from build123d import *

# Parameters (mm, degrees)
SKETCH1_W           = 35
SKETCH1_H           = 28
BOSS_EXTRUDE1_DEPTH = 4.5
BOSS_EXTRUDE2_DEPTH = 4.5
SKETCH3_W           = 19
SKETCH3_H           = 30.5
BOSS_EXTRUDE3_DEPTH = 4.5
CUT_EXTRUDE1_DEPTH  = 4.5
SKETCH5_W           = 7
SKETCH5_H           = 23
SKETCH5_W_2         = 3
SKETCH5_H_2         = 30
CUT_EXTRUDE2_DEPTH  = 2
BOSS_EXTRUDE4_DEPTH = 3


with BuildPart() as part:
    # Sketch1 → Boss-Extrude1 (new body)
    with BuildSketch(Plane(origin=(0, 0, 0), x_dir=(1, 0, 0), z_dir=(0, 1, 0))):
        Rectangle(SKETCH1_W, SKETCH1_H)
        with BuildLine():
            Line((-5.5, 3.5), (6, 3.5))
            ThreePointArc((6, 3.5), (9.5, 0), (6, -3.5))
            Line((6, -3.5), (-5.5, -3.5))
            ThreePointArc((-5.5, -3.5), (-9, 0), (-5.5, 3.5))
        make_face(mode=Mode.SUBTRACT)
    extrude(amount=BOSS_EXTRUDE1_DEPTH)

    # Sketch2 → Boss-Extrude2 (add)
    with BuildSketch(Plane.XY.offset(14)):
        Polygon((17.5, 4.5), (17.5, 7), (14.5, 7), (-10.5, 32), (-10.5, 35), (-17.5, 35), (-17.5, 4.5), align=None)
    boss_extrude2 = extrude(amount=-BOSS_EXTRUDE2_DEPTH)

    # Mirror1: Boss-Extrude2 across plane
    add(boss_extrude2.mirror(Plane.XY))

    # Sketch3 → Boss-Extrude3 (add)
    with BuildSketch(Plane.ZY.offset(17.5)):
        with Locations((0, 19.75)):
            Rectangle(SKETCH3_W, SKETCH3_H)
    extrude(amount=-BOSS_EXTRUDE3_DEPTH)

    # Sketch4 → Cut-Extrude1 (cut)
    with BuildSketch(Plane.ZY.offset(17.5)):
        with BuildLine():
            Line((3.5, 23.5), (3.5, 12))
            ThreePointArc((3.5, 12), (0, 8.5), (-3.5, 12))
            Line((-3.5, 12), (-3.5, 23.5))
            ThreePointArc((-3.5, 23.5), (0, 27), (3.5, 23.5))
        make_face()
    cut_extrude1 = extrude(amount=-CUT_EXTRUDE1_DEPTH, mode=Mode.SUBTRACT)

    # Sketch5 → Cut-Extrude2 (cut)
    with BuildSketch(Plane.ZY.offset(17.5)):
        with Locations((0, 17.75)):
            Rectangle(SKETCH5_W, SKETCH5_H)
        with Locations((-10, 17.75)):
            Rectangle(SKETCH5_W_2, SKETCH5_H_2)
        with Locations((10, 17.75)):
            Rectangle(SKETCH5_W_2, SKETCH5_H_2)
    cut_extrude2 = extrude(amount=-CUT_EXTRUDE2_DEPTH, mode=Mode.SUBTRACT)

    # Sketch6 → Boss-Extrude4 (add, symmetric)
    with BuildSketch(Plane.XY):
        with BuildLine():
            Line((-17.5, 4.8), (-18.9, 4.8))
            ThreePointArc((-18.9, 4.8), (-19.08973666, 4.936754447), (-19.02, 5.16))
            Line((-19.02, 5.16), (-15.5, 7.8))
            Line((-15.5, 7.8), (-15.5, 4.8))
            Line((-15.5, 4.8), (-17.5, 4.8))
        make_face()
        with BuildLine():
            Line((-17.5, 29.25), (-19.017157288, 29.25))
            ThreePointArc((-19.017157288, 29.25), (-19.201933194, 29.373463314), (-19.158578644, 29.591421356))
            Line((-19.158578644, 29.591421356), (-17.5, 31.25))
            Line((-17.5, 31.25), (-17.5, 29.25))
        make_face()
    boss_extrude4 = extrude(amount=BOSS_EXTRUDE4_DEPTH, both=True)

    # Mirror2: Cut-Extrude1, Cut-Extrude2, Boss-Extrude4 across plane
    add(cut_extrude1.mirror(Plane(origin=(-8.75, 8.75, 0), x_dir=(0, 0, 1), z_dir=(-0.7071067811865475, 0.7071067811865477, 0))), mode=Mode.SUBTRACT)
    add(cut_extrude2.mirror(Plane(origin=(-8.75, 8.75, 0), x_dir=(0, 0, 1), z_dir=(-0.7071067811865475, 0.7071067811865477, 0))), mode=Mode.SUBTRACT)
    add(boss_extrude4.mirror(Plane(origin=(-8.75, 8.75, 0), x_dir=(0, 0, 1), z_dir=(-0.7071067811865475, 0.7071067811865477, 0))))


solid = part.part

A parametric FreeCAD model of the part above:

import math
import FreeCAD as App
import Part
import Sketcher

V = App.Vector
Q = App.Units.Quantity


def add_polygon(sketch, points):
    """Adds a closed chain of lines whose ends are joined by coincident constraints."""
    first, n = sketch.GeometryCount, len(points)
    for a, b in zip(points, points[1:] + points[:1]):
        sketch.addGeometry(Part.LineSegment(App.Vector(*a, 0), App.Vector(*b, 0)), False)
    for i in range(n):
        sketch.addConstraint(Sketcher.Constraint("Coincident", first + i, 2, first + (i + 1) % n, 1))

doc = App.newDocument("Part")
body = doc.addObject("PartDesign::Body", "Body")

# Sketch on XZ plane
sketch1 = body.newObject("Sketcher::SketchObject", "Sketch")
sketch1.AttachmentSupport = (doc.getObject("XZ_Plane"), [""])
sketch1.MapMode = "FlatFace"
add_polygon(sketch1, [(-17.5, -14), (-17.5, 14), (17.5, 14), (17.5, -14)])  # lines 0-3
sketch1.addGeometry(Part.ArcOfCircle(Part.Circle(V(-5.5, 0, 0), V(0, 0, 1), 3.5), math.radians(90), math.radians(270)), False)  # 4
sketch1.addGeometry(Part.LineSegment(V(-5.5, -3.5, 0), V(6, -3.5, 0)), False)  # 5
sketch1.addGeometry(Part.ArcOfCircle(Part.Circle(V(6, 0, 0), V(0, 0, 1), 3.5), math.radians(-90), math.radians(90)), False)  # 6
sketch1.addGeometry(Part.LineSegment(V(6, 3.5, 0), V(-5.5, 3.5, 0)), False)  # 7
sketch1.addConstraint([
    Sketcher.Constraint("Tangent", 4, 2, 5, 1),
    Sketcher.Constraint("Tangent", 5, 2, 6, 1),
    Sketcher.Constraint("Tangent", 6, 2, 7, 1),
    Sketcher.Constraint("Tangent", 7, 2, 4, 1),
    Sketcher.Constraint("Vertical", 0),
    Sketcher.Constraint("Horizontal", 1),
    Sketcher.Constraint("Vertical", 2),
    Sketcher.Constraint("Horizontal", 3),
    Sketcher.Constraint("Horizontal", 5),
    Sketcher.Constraint("Horizontal", 7),
    Sketcher.Constraint("Symmetric", 0, 2, 2, 2, -1, 1),
    Sketcher.Constraint("PointOnObject", 4, 3, -1),
    Sketcher.Constraint("Radius", 4, 3.5),
    Sketcher.Constraint("DistanceX", 1, 1, 1, 2, 35.0),
    Sketcher.Constraint("DistanceY", 0, 1, 0, 2, 28.0),
    Sketcher.Constraint("DistanceX", 5, 1, 5, 2, 11.5),
    Sketcher.Constraint("DistanceX", -1, 1, 6, 3, 6.0),
])
pad1 = body.newObject("PartDesign::Pad", "Pad")
pad1.Profile = sketch1
pad1.Length = 4.5
pad1.Reversed = True

# Sketch on XY plane
sketch2 = body.newObject("Sketcher::SketchObject", "Sketch001")
sketch2.AttachmentSupport = (doc.getObject("XY_Plane"), [""])
sketch2.MapMode = "FlatFace"
sketch2.AttachmentOffset = App.Placement(V(0, 0, 14), App.Rotation())
add_polygon(sketch2, [(17.5, 4.5), (17.5, 7), (14.5, 7), (-10.5, 32), (-10.5, 35), (-17.5, 35), (-17.5, 4.5)])  # lines 0-6
sketch2.addConstraint([
    Sketcher.Constraint("Vertical", 0),
    Sketcher.Constraint("Horizontal", 1),
    Sketcher.Constraint("Vertical", 3),
    Sketcher.Constraint("Horizontal", 4),
    Sketcher.Constraint("Vertical", 5),
    Sketcher.Constraint("Horizontal", 6),
    Sketcher.Constraint("Equal", 1, 3),
    Sketcher.Constraint("DistanceX", 1, 2, 1, 1, 3.0),
    Sketcher.Constraint("DistanceX", 4, 2, 4, 1, 7.0),
    Sketcher.Constraint("DistanceX", 6, 1, 6, 2, 35.0),
    Sketcher.Constraint("Angle", 2, Q("135 deg")),
    Sketcher.Constraint("DistanceY", 0, 1, 0, 2, 2.5),
    Sketcher.Constraint("DistanceY", -1, 1, 0, 2, 7.0),
    Sketcher.Constraint("DistanceX", -1, 1, 0, 2, 17.5),
])
pad2 = body.newObject("PartDesign::Pad", "Pad001")
pad2.Profile = sketch2
pad2.Length = 4.5
pad2.Reversed = True
doc.recompute()

mirrored = body.newObject("PartDesign::Mirrored", "Mirrored")
mirrored.Originals = [pad2]
mirrored.MirrorPlane = (doc.getObject("XY_Plane"), [""])
body.Tip = mirrored

# Sketch on YZ plane
sketch3 = body.newObject("Sketcher::SketchObject", "Sketch002")
sketch3.AttachmentSupport = (doc.getObject("YZ_Plane"), [""])
sketch3.MapMode = "FlatFace"
sketch3.AttachmentOffset = App.Placement(V(0, 0, -17.5), App.Rotation())
add_polygon(sketch3, [(35, -9.5), (4.5, -9.5), (4.5, 9.5), (35, 9.5)])  # lines 0-3
sketch3.addConstraint([
    Sketcher.Constraint("Horizontal", 0),
    Sketcher.Constraint("Vertical", 1),
    Sketcher.Constraint("Horizontal", 2),
    Sketcher.Constraint("Vertical", 3),
    Sketcher.Constraint("DistanceY", 1, 1, 1, 2, 19.0),
    Sketcher.Constraint("DistanceX", 0, 2, 0, 1, 30.5),
    Sketcher.Constraint("DistanceX", -1, 1, 2, 2, 35.0),
    Sketcher.Constraint("DistanceY", 0, 2, -1, 1, 9.5),
])
pad3 = body.newObject("PartDesign::Pad", "Pad002")
pad3.Profile = sketch3
pad3.Length = 4.5

# Sketch on YZ plane
sketch4 = body.newObject("Sketcher::SketchObject", "Sketch003")
sketch4.AttachmentSupport = (doc.getObject("YZ_Plane"), [""])
sketch4.MapMode = "FlatFace"
sketch4.AttachmentOffset = App.Placement(V(0, 0, -17.5), App.Rotation())
sketch4.addGeometry([
    Part.LineSegment(V(12, 3.5, 0), V(23.5, 3.5, 0)),
    Part.ArcOfCircle(Part.Circle(V(23.5, 0, 0), V(0, 0, 1), 3.5), math.radians(-90), math.radians(90)),
    Part.LineSegment(V(23.5, -3.5, 0), V(12, -3.5, 0)),
    Part.ArcOfCircle(Part.Circle(V(12, 0, 0), V(0, 0, 1), 3.5), math.radians(90), math.radians(270)),
], False)
sketch4.addConstraint([
    Sketcher.Constraint("Tangent", 0, 2, 1, 2),
    Sketcher.Constraint("Tangent", 1, 1, 2, 1),
    Sketcher.Constraint("Tangent", 2, 2, 3, 2),
    Sketcher.Constraint("Tangent", 3, 1, 0, 1),
    Sketcher.Constraint("Horizontal", 0),
    Sketcher.Constraint("Horizontal", 2),
    Sketcher.Constraint("PointOnObject", 1, 3, -1),
    Sketcher.Constraint("Radius", 1, 3.5),
    Sketcher.Constraint("DistanceX", 0, 1, 0, 2, 11.5),
    Sketcher.Constraint("DistanceX", -1, 1, 3, 3, 12.0),
])
pocket1 = body.newObject("PartDesign::Pocket", "Pocket")
pocket1.Profile = sketch4
pocket1.Length = 4.5
pocket1.Reversed = True

# Sketch on YZ plane
sketch5 = body.newObject("Sketcher::SketchObject", "Sketch004")
sketch5.AttachmentSupport = (doc.getObject("YZ_Plane"), [""])
sketch5.MapMode = "FlatFace"
sketch5.AttachmentOffset = App.Placement(V(0, 0, -17.5), App.Rotation())
add_polygon(sketch5, [(29.25, -3.5), (6.25, -3.5), (6.25, 3.5), (29.25, 3.5)])  # lines 0-3
add_polygon(sketch5, [(32.75, -11.5), (2.75, -11.5), (2.75, -8.5), (32.75, -8.5)])  # lines 4-7
add_polygon(sketch5, [(32.75, 8.5), (2.75, 8.5), (2.75, 11.5), (32.75, 11.5)])  # lines 8-11
sketch5.addConstraint([
    Sketcher.Constraint("Horizontal", 0),
    Sketcher.Constraint("Vertical", 1),
    Sketcher.Constraint("Horizontal", 2),
    Sketcher.Constraint("Vertical", 3),
    Sketcher.Constraint("Horizontal", 4),
    Sketcher.Constraint("Vertical", 5),
    Sketcher.Constraint("Horizontal", 6),
    Sketcher.Constraint("Vertical", 7),
    Sketcher.Constraint("Horizontal", 8),
    Sketcher.Constraint("Vertical", 9),
    Sketcher.Constraint("Horizontal", 10),
    Sketcher.Constraint("Vertical", 11),
    Sketcher.Constraint("Symmetric", 5, 2, 8, 2, -1),
    Sketcher.Constraint("Symmetric", 7, 2, 10, 2, -1),
    Sketcher.Constraint("DistanceX", 0, 2, 0, 1, 23.0),
    Sketcher.Constraint("DistanceX", 4, 2, 4, 1, 30.0),
    Sketcher.Constraint("DistanceY", 1, 1, 1, 2, 7.0),
    Sketcher.Constraint("DistanceY", 5, 1, 5, 2, 3.0),
    Sketcher.Constraint("DistanceY", 4, 2, 0, 2, 8.0),
    Sketcher.Constraint("DistanceY", 1, 2, 8, 2, 5.0),
    Sketcher.Constraint("DistanceX", 4, 2, 0, 2, 3.5),
    Sketcher.Constraint("DistanceX", -1, 1, 0, 2, 6.25),
])
pocket2 = body.newObject("PartDesign::Pocket", "Pocket001")
pocket2.Profile = sketch5
pocket2.Length = 2
pocket2.Reversed = True

# Sketch on XY plane
sketch6 = body.newObject("Sketcher::SketchObject", "Sketch005")
sketch6.AttachmentSupport = (doc.getObject("XY_Plane"), [""])
sketch6.MapMode = "FlatFace"
sketch6.addGeometry([
    Part.ArcOfCircle(Part.Circle(V(-18.9, 5, 0), V(0, 0, 1), 0.2), math.radians(126.869898), math.radians(270)),  # 0
    Part.LineSegment(V(-18.9, 4.8, 0), V(-15.5, 4.8, 0)),  # 1
    Part.LineSegment(V(-15.5, 4.8, 0), V(-15.5, 7.8, 0)),  # 2
    Part.LineSegment(V(-15.5, 7.8, 0), V(-19.02, 5.16, 0)),  # 3
    Part.LineSegment(V(-19.017157, 29.25, 0), V(-17.5, 29.25, 0)),  # 4
    Part.LineSegment(V(-17.5, 29.25, 0), V(-17.5, 31.25, 0)),  # 5
    Part.LineSegment(V(-17.5, 31.25, 0), V(-19.158579, 29.591421, 0)),  # 6
    Part.ArcOfCircle(Part.Circle(V(-19.017157, 29.45, 0), V(0, 0, 1), 0.2), math.radians(135), math.radians(270)),  # 7
], False)
sketch6.addConstraint([
    Sketcher.Constraint("Tangent", 0, 2, 1, 1),
    Sketcher.Constraint("Coincident", 1, 2, 2, 1),
    Sketcher.Constraint("Coincident", 2, 2, 3, 1),
    Sketcher.Constraint("Tangent", 3, 2, 0, 1),
    Sketcher.Constraint("Coincident", 4, 2, 5, 1),
    Sketcher.Constraint("Coincident", 5, 2, 6, 1),
    Sketcher.Constraint("Tangent", 6, 2, 7, 1),
    Sketcher.Constraint("Tangent", 7, 2, 4, 1),
    Sketcher.Constraint("Horizontal", 1),
    Sketcher.Constraint("Vertical", 2),
    Sketcher.Constraint("Horizontal", 4),
    Sketcher.Constraint("Vertical", 5),
    Sketcher.Constraint("Equal", 0, 7),
    Sketcher.Constraint("Radius", 0, 0.2),
    Sketcher.Constraint("DistanceY", 2, 1, 2, 2, 3.0),
    Sketcher.Constraint("DistanceY", 5, 1, 5, 2, 2.0),
    Sketcher.Constraint("Angle", 6, Q("-135 deg")),
    Sketcher.Constraint("DistanceX", 1, 1, 1, 2, 3.4),
    Sketcher.Constraint("DistanceY", -1, 1, 0, 3, 5.0),
    Sketcher.Constraint("DistanceX", 4, 2, 2, 2, 2.0),
    Sketcher.Constraint("DistanceX", 0, 3, -1, 1, 18.9),
    Sketcher.Constraint("DistanceY", -1, 1, 7, 3, 29.45),
])
pad4 = body.newObject("PartDesign::Pad", "Pad003")
pad4.Profile = sketch6
pad4.Length = 6
pad4.Midplane = True
doc.recompute()

datumplane = body.newObject("PartDesign::Plane", "DatumPlane")
datumplane.Placement = App.Placement(V(-8.75, 8.75, 0), App.Rotation(V(0.707106781, 0.707106781, 0), V(0, 0, -1), V(-0.707106781, 0.707106781, 0), "ZXY"))
mirrored2 = body.newObject("PartDesign::Mirrored", "Mirrored001")
mirrored2.Originals = [pocket1, pocket2, pad4]
mirrored2.MirrorPlane = (datumplane, [""])
body.Tip = mirrored2

doc.recompute()
